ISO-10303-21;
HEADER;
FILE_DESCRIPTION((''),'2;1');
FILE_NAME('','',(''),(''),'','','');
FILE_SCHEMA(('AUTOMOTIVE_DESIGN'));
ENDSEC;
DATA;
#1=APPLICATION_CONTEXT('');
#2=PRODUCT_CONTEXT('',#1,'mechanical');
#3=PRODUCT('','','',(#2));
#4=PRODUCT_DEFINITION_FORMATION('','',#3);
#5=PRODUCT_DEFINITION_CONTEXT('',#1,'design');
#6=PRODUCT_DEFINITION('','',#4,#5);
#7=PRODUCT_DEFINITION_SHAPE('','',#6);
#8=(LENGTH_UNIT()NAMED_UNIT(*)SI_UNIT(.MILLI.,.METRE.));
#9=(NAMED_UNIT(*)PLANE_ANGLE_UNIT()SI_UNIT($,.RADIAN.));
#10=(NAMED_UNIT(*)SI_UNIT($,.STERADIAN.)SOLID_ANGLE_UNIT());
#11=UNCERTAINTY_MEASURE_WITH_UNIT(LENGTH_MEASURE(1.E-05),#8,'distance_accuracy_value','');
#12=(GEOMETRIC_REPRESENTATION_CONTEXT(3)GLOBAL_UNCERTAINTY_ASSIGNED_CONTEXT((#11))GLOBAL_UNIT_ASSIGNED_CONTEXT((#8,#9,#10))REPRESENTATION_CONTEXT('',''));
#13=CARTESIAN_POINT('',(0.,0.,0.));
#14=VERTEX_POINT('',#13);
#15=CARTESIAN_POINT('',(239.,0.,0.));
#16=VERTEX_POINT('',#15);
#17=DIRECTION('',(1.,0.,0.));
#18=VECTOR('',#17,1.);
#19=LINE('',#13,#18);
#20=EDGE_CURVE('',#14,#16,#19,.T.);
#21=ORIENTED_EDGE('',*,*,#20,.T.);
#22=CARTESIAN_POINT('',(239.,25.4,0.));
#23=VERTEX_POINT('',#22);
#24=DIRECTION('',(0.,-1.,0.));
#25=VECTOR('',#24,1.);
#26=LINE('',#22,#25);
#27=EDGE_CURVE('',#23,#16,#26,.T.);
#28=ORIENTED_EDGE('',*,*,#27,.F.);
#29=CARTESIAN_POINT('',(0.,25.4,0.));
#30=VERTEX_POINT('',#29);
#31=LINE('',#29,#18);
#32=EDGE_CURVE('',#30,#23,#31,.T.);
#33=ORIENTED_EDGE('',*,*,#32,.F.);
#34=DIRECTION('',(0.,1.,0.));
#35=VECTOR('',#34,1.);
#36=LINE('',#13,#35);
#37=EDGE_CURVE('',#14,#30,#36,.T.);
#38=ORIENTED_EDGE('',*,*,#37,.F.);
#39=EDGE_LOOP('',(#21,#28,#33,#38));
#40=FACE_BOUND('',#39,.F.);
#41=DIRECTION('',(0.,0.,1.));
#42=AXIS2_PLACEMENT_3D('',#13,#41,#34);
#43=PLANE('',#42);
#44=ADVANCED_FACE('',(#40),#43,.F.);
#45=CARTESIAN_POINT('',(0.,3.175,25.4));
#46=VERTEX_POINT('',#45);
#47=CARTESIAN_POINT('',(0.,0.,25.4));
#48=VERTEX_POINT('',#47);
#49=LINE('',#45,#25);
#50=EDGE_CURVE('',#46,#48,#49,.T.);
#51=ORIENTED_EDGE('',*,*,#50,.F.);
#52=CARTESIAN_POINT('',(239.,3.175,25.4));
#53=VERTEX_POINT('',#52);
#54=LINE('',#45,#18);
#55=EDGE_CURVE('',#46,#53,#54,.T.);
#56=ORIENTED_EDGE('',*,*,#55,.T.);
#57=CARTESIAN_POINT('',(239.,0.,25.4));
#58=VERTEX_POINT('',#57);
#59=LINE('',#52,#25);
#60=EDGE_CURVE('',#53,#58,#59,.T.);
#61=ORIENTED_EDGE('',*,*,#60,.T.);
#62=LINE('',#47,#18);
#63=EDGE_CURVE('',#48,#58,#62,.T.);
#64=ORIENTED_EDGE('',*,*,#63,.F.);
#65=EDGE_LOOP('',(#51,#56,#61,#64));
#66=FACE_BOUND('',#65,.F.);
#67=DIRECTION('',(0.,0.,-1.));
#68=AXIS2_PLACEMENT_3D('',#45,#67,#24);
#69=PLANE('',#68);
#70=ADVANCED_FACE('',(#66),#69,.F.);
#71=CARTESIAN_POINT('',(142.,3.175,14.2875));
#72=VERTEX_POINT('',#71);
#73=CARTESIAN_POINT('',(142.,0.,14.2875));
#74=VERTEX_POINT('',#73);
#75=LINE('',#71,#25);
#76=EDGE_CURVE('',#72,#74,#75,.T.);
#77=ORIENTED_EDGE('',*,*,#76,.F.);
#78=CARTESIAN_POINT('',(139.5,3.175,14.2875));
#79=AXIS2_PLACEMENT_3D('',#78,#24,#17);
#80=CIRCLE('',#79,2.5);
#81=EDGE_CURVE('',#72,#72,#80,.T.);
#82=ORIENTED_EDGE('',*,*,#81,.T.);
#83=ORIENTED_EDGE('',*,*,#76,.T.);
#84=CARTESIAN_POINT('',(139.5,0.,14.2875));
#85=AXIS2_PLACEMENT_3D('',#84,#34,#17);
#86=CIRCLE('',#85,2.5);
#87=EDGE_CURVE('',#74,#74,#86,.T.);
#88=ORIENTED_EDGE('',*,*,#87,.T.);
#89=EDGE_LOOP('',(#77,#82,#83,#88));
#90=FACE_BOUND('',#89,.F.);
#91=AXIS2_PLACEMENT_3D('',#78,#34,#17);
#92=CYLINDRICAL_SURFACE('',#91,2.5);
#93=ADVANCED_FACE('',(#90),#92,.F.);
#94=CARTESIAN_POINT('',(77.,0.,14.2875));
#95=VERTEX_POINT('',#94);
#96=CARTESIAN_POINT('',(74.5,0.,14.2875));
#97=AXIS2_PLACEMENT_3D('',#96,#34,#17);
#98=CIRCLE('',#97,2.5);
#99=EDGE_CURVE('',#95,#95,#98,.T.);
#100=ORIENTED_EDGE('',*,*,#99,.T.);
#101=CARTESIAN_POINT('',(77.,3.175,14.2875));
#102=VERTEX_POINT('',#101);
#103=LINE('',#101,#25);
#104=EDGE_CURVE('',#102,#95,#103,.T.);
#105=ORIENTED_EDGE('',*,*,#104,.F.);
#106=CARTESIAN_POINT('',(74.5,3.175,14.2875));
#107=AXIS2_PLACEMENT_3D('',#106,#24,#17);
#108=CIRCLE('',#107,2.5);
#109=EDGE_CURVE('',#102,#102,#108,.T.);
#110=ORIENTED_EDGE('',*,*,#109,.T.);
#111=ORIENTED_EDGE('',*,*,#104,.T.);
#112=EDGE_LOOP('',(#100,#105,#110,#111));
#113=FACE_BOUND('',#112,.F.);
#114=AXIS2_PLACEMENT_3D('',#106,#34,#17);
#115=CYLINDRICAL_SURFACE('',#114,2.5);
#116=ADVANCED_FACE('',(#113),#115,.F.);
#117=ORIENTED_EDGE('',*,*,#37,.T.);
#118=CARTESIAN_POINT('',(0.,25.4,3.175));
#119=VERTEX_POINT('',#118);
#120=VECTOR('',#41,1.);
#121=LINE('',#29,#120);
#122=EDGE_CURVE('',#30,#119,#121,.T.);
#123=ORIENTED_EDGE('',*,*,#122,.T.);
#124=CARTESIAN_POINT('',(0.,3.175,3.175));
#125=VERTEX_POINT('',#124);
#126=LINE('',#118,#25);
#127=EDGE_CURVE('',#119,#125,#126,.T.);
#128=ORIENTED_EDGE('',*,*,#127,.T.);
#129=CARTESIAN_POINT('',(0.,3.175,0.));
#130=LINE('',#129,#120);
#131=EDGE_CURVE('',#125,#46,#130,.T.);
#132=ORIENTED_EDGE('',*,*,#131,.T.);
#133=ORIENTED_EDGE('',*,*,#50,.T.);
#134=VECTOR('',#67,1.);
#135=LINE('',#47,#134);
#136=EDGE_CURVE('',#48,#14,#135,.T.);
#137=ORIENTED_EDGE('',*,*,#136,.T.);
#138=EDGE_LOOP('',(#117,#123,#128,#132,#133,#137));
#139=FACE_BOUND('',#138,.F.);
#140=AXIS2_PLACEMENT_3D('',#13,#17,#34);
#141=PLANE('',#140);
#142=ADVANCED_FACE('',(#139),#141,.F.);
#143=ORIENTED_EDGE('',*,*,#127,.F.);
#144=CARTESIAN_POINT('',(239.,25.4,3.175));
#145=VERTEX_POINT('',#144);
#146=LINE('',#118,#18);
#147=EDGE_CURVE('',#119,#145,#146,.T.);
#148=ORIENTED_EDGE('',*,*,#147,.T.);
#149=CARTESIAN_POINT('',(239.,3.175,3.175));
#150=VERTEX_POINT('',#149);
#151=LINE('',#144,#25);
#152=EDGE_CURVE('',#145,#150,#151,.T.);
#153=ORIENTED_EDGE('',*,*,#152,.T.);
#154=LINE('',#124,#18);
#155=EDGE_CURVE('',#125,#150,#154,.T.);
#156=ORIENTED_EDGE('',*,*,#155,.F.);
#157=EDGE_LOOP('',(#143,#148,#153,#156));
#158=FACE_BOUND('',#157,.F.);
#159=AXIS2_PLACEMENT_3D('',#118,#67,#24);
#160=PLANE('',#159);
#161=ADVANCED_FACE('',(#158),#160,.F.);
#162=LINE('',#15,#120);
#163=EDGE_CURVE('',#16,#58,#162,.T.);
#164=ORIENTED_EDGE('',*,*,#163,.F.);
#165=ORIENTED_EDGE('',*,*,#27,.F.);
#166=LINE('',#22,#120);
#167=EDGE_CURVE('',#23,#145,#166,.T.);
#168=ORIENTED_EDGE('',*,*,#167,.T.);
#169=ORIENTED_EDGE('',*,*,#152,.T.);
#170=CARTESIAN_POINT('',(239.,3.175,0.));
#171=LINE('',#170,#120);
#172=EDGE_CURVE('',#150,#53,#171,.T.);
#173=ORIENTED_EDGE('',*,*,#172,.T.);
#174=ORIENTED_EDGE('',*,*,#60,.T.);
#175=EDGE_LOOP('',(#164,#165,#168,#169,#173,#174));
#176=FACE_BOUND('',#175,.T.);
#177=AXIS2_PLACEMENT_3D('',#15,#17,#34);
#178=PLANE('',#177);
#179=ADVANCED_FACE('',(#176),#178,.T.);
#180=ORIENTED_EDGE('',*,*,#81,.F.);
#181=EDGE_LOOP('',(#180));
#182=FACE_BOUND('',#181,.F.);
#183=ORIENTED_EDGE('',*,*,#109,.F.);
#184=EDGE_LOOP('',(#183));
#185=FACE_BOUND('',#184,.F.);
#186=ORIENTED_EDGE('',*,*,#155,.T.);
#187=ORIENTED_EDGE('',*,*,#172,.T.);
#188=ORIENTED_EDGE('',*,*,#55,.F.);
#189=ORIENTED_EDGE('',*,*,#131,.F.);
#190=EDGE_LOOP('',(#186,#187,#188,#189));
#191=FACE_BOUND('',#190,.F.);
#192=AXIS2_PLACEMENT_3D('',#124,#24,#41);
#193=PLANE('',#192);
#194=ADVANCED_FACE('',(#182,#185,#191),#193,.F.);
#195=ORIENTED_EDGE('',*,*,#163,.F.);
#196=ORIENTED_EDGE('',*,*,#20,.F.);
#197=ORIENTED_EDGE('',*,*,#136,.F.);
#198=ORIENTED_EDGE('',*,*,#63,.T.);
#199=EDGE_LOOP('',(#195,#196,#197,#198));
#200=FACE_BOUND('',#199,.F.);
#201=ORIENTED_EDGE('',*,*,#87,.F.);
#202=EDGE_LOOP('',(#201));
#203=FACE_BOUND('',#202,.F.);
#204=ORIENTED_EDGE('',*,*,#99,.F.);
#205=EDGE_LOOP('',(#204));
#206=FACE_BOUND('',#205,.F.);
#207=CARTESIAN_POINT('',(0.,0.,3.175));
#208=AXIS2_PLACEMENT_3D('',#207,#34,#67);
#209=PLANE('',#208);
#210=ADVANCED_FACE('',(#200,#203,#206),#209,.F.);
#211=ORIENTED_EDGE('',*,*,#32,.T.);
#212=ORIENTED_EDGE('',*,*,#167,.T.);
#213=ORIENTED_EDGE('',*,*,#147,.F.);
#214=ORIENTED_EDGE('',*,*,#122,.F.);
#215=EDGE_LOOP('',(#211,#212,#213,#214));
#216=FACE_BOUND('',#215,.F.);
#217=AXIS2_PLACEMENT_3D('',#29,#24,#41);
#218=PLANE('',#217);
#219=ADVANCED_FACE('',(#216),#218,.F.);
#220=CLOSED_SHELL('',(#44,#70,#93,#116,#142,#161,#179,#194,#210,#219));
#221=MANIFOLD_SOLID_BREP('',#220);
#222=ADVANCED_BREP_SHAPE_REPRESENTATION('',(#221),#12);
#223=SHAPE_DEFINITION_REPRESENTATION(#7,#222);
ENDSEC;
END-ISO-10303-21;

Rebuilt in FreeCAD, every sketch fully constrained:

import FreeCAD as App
import Part
import Sketcher
from FreeCAD import Vector
Q = App.Units.Quantity

doc = App.newDocument("Part")
params = doc.addObject("Spreadsheet::Sheet", "Params")
for row, (alias, value) in enumerate([
    ("sketch1_width", "1 in"),
    ("sketch1_width2", "0.125 in"),
    ("pad1_length", "239 mm"),
    ("pocket1_length", "0.3937008 in"),
], start=1):
    params.set(f"A{row}", alias)
    params.set(f"B{row}", "=" + value)
    params.setAlias(f"B{row}", alias)

body = doc.addObject("PartDesign::Body", "Body")

sketch1 = body.newObject("Sketcher::SketchObject", "Sketch")
sketch1.AttachmentSupport = (doc.getObject("YZ_Plane"), [""])
sketch1.MapMode = "FlatFace"
sketch1.addGeometry([
    Part.LineSegment(Vector(0, 0, 0), Vector(25.4, 0, 0)),
    Part.LineSegment(Vector(25.4, 0, 0), Vector(25.4, 3.2, 0)),
    Part.LineSegment(Vector(25.4, 3.2, 0), Vector(3.2, 3.2, 0)),
    Part.LineSegment(Vector(3.2, 3.2, 0), Vector(3.2, 25.4, 0)),
    Part.LineSegment(Vector(3.2, 25.4, 0), Vector(0, 25.4, 0)),
    Part.LineSegment(Vector(0, 25.4, 0), Vector(0, 0, 0)),
], False)
sketch1.addConstraint([
    Sketcher.Constraint("Coincident", 0, 2, 1, 1),
    Sketcher.Constraint("Coincident", 1, 2, 2, 1),
    Sketcher.Constraint("Coincident", 2, 2, 3, 1),
    Sketcher.Constraint("Coincident", 3, 2, 4, 1),
    Sketcher.Constraint("Coincident", 4, 2, 5, 1),
    Sketcher.Constraint("Coincident", 5, 2, 0, 1),
    Sketcher.Constraint("Horizontal", 0),
    Sketcher.Constraint("Vertical", 1),
    Sketcher.Constraint("Horizontal", 2),
    Sketcher.Constraint("Vertical", 3),
    Sketcher.Constraint("Horizontal", 4),
    Sketcher.Constraint("Vertical", 5),
    Sketcher.Constraint("Coincident", 5, 2, -1, 1),
    Sketcher.Constraint("Equal", 4, 1),
    Sketcher.Constraint("Equal", 2, 3),
    Sketcher.Constraint("DistanceX", 0, 1, 0, 2, Q("1 in")),
    Sketcher.Constraint("DistanceX", 4, 2, 4, 1, Q("0.125 in")),
])
sketch1.setExpression("Constraints[15]", "Params.sketch1_width")
sketch1.setExpression("Constraints[16]", "Params.sketch1_width2")
pad1 = body.newObject("PartDesign::Pad", "Pad")
pad1.Profile = sketch1
pad1.setExpression("Length", "Params.pad1_length")

sketch2 = body.newObject("Sketcher::SketchObject", "Sketch001")
sketch2.AttachmentSupport = (doc.getObject("XZ_Plane"), [""])
sketch2.MapMode = "FlatFace"
sketch2.AttachmentOffset = App.Placement(Vector(0, 0, -0.125 * 25.4), App.Rotation())
sketch2.addGeometry([
    Part.Circle(Vector(139.5, 14.3, 0), Vector(0, 0, 1), 2.5),
    Part.Circle(Vector(74.5, 14.3, 0), Vector(0, 0, 1), 2.5),
], False)
sketch2.addConstraint([
    Sketcher.Constraint("Equal", 0, 1),
    Sketcher.Constraint("Horizontal", 0, 3, 1, 3),
    Sketcher.Constraint("Diameter", 0, 5.0),
    Sketcher.Constraint("DistanceX", -1, 1, 1, 3, 74.5),
    Sketcher.Constraint("DistanceX", 1, 3, 0, 3, 65.0),
    Sketcher.Constraint("DistanceY", -1, 1, 0, 3, Q("0.5625 in")),
])
pocket1 = body.newObject("PartDesign::Pocket", "Pocket")
pocket1.Profile = sketch2
pocket1.setExpression("Length", "Params.pocket1_length")
pocket1.Reversed = True

doc.recompute()
